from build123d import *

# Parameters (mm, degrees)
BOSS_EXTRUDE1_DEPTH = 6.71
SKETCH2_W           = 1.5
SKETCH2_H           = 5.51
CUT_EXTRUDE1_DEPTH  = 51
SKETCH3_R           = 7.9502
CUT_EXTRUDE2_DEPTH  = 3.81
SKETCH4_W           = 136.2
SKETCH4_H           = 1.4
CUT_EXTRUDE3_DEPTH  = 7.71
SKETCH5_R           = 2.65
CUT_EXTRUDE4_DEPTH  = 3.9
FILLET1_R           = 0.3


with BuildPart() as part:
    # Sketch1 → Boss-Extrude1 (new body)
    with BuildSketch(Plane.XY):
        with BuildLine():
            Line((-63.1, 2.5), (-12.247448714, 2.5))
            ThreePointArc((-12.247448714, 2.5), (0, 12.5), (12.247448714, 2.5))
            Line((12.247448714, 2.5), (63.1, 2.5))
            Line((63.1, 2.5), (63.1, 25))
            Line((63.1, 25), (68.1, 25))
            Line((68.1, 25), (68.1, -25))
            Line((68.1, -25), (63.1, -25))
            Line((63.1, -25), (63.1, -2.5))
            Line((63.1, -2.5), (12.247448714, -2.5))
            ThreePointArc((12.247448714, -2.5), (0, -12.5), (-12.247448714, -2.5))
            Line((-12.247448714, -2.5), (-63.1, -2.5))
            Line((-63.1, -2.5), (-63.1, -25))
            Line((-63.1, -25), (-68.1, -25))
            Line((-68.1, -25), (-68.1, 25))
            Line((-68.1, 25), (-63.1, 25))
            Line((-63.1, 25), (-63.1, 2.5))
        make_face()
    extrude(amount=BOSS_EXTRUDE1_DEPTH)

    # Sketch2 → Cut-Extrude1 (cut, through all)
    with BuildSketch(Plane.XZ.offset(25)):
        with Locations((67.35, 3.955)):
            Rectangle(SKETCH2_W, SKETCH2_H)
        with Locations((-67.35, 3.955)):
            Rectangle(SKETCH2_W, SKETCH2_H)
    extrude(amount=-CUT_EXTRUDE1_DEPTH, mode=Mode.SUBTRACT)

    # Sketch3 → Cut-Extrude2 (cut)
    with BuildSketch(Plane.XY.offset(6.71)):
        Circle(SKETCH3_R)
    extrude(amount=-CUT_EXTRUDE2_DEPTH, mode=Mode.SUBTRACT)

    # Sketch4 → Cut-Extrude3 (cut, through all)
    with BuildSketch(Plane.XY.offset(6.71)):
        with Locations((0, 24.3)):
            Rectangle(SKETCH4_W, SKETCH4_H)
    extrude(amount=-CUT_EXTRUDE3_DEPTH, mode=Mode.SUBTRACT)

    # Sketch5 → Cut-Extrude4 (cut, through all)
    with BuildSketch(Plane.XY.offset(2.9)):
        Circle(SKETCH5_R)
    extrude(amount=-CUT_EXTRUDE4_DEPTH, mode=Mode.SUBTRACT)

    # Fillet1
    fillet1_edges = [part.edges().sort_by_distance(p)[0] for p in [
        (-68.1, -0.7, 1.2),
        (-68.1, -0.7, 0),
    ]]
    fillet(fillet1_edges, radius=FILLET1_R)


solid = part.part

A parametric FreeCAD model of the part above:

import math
import FreeCAD as App
import Part
import Sketcher
from FreeCAD import Vector
Q = App.Units.Quantity


def edges_at(feature, points):
    """Names of the edges that pass closest to the given points."""
    edges = feature.Shape.Edges
    near = lambda p: min(range(len(edges)), key=lambda i: edges[i].distToShape(Part.Vertex(*p))[0])
    return sorted({f"Edge{near(p) + 1}" for p in points})


def add_polygon(sketch, points):
    """Adds a closed chain of lines whose ends are joined by coincident constraints."""
    first, n = sketch.GeometryCount, len(points)
    for a, b in zip(points, points[1:] + points[:1]):
        sketch.addGeometry(Part.LineSegment(App.Vector(*a, 0), App.Vector(*b, 0)), False)
    for i in range(n):
        sketch.addConstraint(Sketcher.Constraint("Coincident", first + i, 2, first + (i + 1) % n, 1))

doc = App.newDocument("Part")
body = doc.addObject("PartDesign::Body", "Body")

sketch1 = doc.addObject("Sketcher::SketchObject", "Sketch")
body.addObject(sketch1)
sketch1.AttachmentSupport = (doc.XY_Plane, [""])
sketch1.MapMode = "FlatFace"
sketch1.addGeometry([
    Part.LineSegment(Vector(-12.2, 2.5, 0), Vector(-63.1, 2.5, 0)),
    Part.LineSegment(Vector(-63.1, 2.5, 0), Vector(-63.1, 25, 0)),
    Part.LineSegment(Vector(-63.1, 25, 0), Vector(-68.1, 25, 0)),
    Part.LineSegment(Vector(-68.1, 25, 0), Vector(-68.1, -25, 0)),
    Part.LineSegment(Vector(-68.1, -25, 0), Vector(-63.1, -25, 0)),
    Part.LineSegment(Vector(-63.1, -25, 0), Vector(-63.1, -2.5, 0)),
    Part.LineSegment(Vector(-63.1, -2.5, 0), Vector(-12.2, -2.5, 0)),
    Part.ArcOfCircle(Part.Circle(Vector(0, 0, 0), Vector(0, 0, 1), 12.5), math.radians(-168), math.radians(-12)),
    Part.LineSegment(Vector(12.2, -2.5, 0), Vector(63.1, -2.5, 0)),
    Part.LineSegment(Vector(63.1, -2.5, 0), Vector(63.1, -25, 0)),
    Part.LineSegment(Vector(63.1, -25, 0), Vector(68.1, -25, 0)),
    Part.LineSegment(Vector(68.1, -25, 0), Vector(68.1, 25, 0)),
    Part.LineSegment(Vector(68.1, 25, 0), Vector(63.1, 25, 0)),
    Part.LineSegment(Vector(63.1, 25, 0), Vector(63.1, 2.5, 0)),
    Part.LineSegment(Vector(63.1, 2.5, 0), Vector(12.2, 2.5, 0)),
    Part.ArcOfCircle(Part.Circle(Vector(0, 0, 0), Vector(0, 0, 1), 12.5), math.radians(12), math.radians(168)),
], False)
sketch1.addConstraint([
    Sketcher.Constraint("Coincident", 0, 2, 1, 1),
    Sketcher.Constraint("Coincident", 1, 2, 2, 1),
    Sketcher.Constraint("Coincident", 2, 2, 3, 1),
    Sketcher.Constraint("Coincident", 3, 2, 4, 1),
    Sketcher.Constraint("Coincident", 4, 2, 5, 1),
    Sketcher.Constraint("Coincident", 5, 2, 6, 1),
    Sketcher.Constraint("Coincident", 6, 2, 7, 1),
    Sketcher.Constraint("Coincident", 7, 2, 8, 1),
    Sketcher.Constraint("Coincident", 8, 2, 9, 1),
    Sketcher.Constraint("Coincident", 9, 2, 10, 1),
    Sketcher.Constraint("Coincident", 10, 2, 11, 1),
    Sketcher.Constraint("Coincident", 11, 2, 12, 1),
    Sketcher.Constraint("Coincident", 12, 2, 13, 1),
    Sketcher.Constraint("Coincident", 13, 2, 14, 1),
    Sketcher.Constraint("Coincident", 14, 2, 15, 1),
    Sketcher.Constraint("Coincident", 15, 2, 0, 1),
    Sketcher.Constraint("Horizontal", 0),
    Sketcher.Constraint("Vertical", 1),
    Sketcher.Constraint("Horizontal", 2),
    Sketcher.Constraint("Vertical", 3),
    Sketcher.Constraint("Horizontal", 4),
    Sketcher.Constraint("Vertical", 5),
    Sketcher.Constraint("Horizontal", 6),
    Sketcher.Constraint("Horizontal", 8),
    Sketcher.Constraint("Vertical", 9),
    Sketcher.Constraint("Horizontal", 10),
    Sketcher.Constraint("Vertical", 11),
    Sketcher.Constraint("Horizontal", 12),
    Sketcher.Constraint("Vertical", 13),
    Sketcher.Constraint("Horizontal", 14),
    Sketcher.Constraint("Coincident", 7, 3, -1, 1),
    Sketcher.Constraint("Coincident", 15, 3, -1, 1),
    Sketcher.Constraint("Equal", 7, 15),
    Sketcher.Constraint("Symmetric", 0, 2, 8, 2, -1, 1),
    Sketcher.Constraint("Symmetric", 2, 2, 10, 2, -1, 1),
    Sketcher.Constraint("Symmetric", 4, 2, 12, 2, -1, 1),
    Sketcher.Constraint("Symmetric", 5, 2, 8, 2, -2),
    Sketcher.Constraint("Horizontal", 4, 2, 9, 2),
    Sketcher.Constraint("Horizontal", 0, 2, 13, 2),
    Sketcher.Constraint("Radius", 7, Q("12.5 mm")),
    Sketcher.Constraint("DistanceX", 2, 2, 2, 1, Q("5 mm")),
    Sketcher.Constraint("DistanceY", 3, 2, 3, 1, Q("50 mm")),
    Sketcher.Constraint("DistanceY", 1, 1, 1, 2, Q("22.5 mm")),
    Sketcher.Constraint("DistanceX", 0, 2, -1, 1, Q("63.1 mm")),
])
pad1 = doc.addObject("PartDesign::Pad", "Pad")
body.addObject(pad1)
pad1.Profile = sketch1
pad1.Length = 6.71

sketch2 = doc.addObject("Sketcher::SketchObject", "Sketch001")
body.addObject(sketch2)
sketch2.AttachmentSupport = (doc.XZ_Plane, [""])
sketch2.MapMode = "FlatFace"
sketch2.AttachmentOffset = App.Placement(Vector(0, 0, 25), App.Rotation())
add_polygon(sketch2, [(66.6, 6.7), (66.6, 1.2), (68.1, 1.2), (68.1, 6.7)])
add_polygon(sketch2, [(-68.1, 6.7), (-68.1, 1.2), (-66.6, 1.2), (-66.6, 6.7)])
sketch2.addConstraint([
    Sketcher.Constraint("Vertical", 0),
    Sketcher.Constraint("Horizontal", 1),
    Sketcher.Constraint("Vertical", 2),
    Sketcher.Constraint("Horizontal", 3),
    Sketcher.Constraint("Vertical", 4),
    Sketcher.Constraint("Horizontal", 5),
    Sketcher.Constraint("Vertical", 6),
    Sketcher.Constraint("Horizontal", 7),
    Sketcher.Constraint("Symmetric", 1, 2, 4, 2, -2),
    Sketcher.Constraint("Symmetric", 3, 2, 6, 2, -2),
    Sketcher.Constraint("DistanceX", 1, 1, 1, 2, Q("1.5 mm")),
    Sketcher.Constraint("DistanceY", 0, 2, 0, 1, Q("5.51 mm")),
    Sketcher.Constraint("DistanceX", -1, 1, 0, 2, Q("66.6 mm")),
    Sketcher.Constraint("DistanceY", -1, 1, 0, 2, Q("1.2 mm")),
])
pocket1 = doc.addObject("PartDesign::Pocket", "Pocket")
body.addObject(pocket1)
pocket1.Profile = sketch2
pocket1.Type = "ThroughAll"

sketch3 = doc.addObject("Sketcher::SketchObject", "Sketch002")
body.addObject(sketch3)
sketch3.AttachmentSupport = (doc.XY_Plane, [""])
sketch3.MapMode = "FlatFace"
sketch3.AttachmentOffset = App.Placement(Vector(0, 0, 6.71), App.Rotation())
sketch3.addGeometry(Part.Circle(Vector(0, 0, 0), Vector(0, 0, 1), 8), False)
sketch3.addConstraint([
    Sketcher.Constraint("Coincident", 0, 3, -1, 1),
    Sketcher.Constraint("Diameter", 0, Q("15.9004 mm")),
])
pocket2 = doc.addObject("PartDesign::Pocket", "Pocket001")
body.addObject(pocket2)
pocket2.Profile = sketch3
pocket2.Length = 3.81

sketch4 = doc.addObject("Sketcher::SketchObject", "Sketch003")
body.addObject(sketch4)
sketch4.AttachmentSupport = (doc.XY_Plane, [""])
sketch4.MapMode = "FlatFace"
sketch4.AttachmentOffset = App.Placement(Vector(0, 0, 6.71), App.Rotation())
add_polygon(sketch4, [(-68.1, 25), (-68.1, 23.6), (68.1, 23.6), (68.1, 25)])
sketch4.addConstraint([
    Sketcher.Constraint("Vertical", 0),
    Sketcher.Constraint("Horizontal", 1),
    Sketcher.Constraint("Vertical", 2),
    Sketcher.Constraint("Horizontal", 3),
    Sketcher.Constraint("DistanceX", 1, 1, 1, 2, Q("136.2 mm")),
    Sketcher.Constraint("DistanceY", 0, 2, 0, 1, Q("1.4 mm")),
    Sketcher.Constraint("DistanceY", -1, 1, 2, 2, Q("25 mm")),
    Sketcher.Constraint("DistanceX", 0, 2, -1, 1, Q("68.1 mm")),
])
pocket3 = doc.addObject("PartDesign::Pocket", "Pocket002")
body.addObject(pocket3)
pocket3.Profile = sketch4
pocket3.Type = "ThroughAll"

sketch5 = doc.addObject("Sketcher::SketchObject", "Sketch004")
body.addObject(sketch5)
sketch5.AttachmentSupport = (doc.XY_Plane, [""])
sketch5.MapMode = "FlatFace"
sketch5.AttachmentOffset = App.Placement(Vector(0, 0, 2.9), App.Rotation())
sketch5.addGeometry(Part.Circle(Vector(0, 0, 0), Vector(0, 0, 1), 2.6), False)
sketch5.addConstraint([
    Sketcher.Constraint("Coincident", 0, 3, -1, 1),
    Sketcher.Constraint("Diameter", 0, Q("5.3 mm")),
])
pocket4 = doc.addObject("PartDesign::Pocket", "Pocket003")
body.addObject(pocket4)
pocket4.Profile = sketch5
pocket4.Type = "ThroughAll"
doc.recompute()

fillet = doc.addObject("PartDesign::Fillet", "Fillet")
body.addObject(fillet)
fillet.Base = (pocket4, edges_at(pocket4, [(-68.1, -0.7, 1.2), (-68.1, -0.7, 0)]))
fillet.Radius = 0.3

doc.recompute()
